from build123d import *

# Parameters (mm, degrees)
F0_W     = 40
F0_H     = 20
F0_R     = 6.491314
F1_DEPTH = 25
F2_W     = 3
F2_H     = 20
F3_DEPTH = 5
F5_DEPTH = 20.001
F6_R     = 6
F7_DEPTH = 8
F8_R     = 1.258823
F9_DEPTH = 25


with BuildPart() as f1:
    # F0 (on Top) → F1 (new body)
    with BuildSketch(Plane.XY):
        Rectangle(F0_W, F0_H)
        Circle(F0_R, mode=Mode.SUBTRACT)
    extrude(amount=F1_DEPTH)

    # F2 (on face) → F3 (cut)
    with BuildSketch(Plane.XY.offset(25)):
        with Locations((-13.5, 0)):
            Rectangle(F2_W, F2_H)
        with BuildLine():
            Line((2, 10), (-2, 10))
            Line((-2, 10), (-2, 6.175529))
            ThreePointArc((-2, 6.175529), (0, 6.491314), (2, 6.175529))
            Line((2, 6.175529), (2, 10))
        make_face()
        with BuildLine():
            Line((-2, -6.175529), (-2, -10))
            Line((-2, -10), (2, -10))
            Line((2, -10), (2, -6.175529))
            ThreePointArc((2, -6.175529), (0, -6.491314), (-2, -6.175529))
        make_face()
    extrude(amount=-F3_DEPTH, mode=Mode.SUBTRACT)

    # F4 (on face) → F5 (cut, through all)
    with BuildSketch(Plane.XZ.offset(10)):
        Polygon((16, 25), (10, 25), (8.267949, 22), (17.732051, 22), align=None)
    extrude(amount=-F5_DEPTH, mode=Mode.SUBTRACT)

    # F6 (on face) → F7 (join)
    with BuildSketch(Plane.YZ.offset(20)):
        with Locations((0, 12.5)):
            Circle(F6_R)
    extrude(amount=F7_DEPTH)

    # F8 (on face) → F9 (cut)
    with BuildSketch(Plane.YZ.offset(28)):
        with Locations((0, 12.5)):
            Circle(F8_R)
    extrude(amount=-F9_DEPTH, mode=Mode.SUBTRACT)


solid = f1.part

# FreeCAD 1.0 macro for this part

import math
import FreeCAD as App
import Part
import Sketcher
Q = App.Units.Quantity

doc = App.newDocument("Part")
params = doc.addObject("Spreadsheet::Sheet", "Params")
for row, (alias, value) in enumerate([
    ("sketch1_width", "40 mm"),
    ("sketch1_height", "20 mm"),
    ("pad1_length", "25 mm"),
    ("sketch2_width", "3 mm"),
    ("sketch2_width2", "4 mm"),
    ("sketch2_height", "20 mm"),
    ("pocket1_length", "5 mm"),
    ("sketch3_width", "6 mm"),
    ("sketch4_diameter", "12 mm"),
    ("pad2_length", "8 mm"),
    ("pocket3_length", "25 mm"),
], start=1):
    params.set(f"A{row}", alias)
    params.set(f"B{row}", "=" + value)
    params.setAlias(f"B{row}", alias)

body = doc.addObject("PartDesign::Body", "Body")

sketch1 = body.newObject("Sketcher::SketchObject", "Sketch")
sketch1.AttachmentSupport = (doc.getObject("XY_Plane"), [""])
sketch1.MapMode = "FlatFace"
sketch1.addGeometry([
    Part.LineSegment(App.Vector(-20, 10, 0), App.Vector(-20, -10, 0)),
    Part.LineSegment(App.Vector(-20, -10, 0), App.Vector(20, -10, 0)),
    Part.LineSegment(App.Vector(20, -10, 0), App.Vector(20, 10, 0)),
    Part.LineSegment(App.Vector(20, 10, 0), App.Vector(-20, 10, 0)),
    Part.Circle(App.Vector(0, 0, 0), App.Vector(0, 0, 1), 6.491314),
], False)
sketch1.addConstraint([
    Sketcher.Constraint("Coincident", 0, 2, 1, 1),
    Sketcher.Constraint("Coincident", 1, 2, 2, 1),
    Sketcher.Constraint("Coincident", 2, 2, 3, 1),
    Sketcher.Constraint("Coincident", 3, 2, 0, 1),
    Sketcher.Constraint("Vertical", 0),
    Sketcher.Constraint("Horizontal", 1),
    Sketcher.Constraint("Vertical", 2),
    Sketcher.Constraint("Horizontal", 3),
    Sketcher.Constraint("Coincident", 4, 3, -1, 1),
    Sketcher.Constraint("Symmetric", 0, 2, 2, 2, -1, 1),
    Sketcher.Constraint("DistanceX", 1, 1, 1, 2, Q("40 mm")),
    Sketcher.Constraint("DistanceY", 0, 2, 0, 1, Q("20 mm")),
    Sketcher.Constraint("Diameter", 4, Q("12.982628 mm")),
])
sketch1.setExpression("Constraints[10]", "Params.sketch1_width")
sketch1.setExpression("Constraints[11]", "Params.sketch1_height")
pad1 = body.newObject("PartDesign::Pad", "Pad")
pad1.Profile = sketch1
pad1.setExpression("Length", "Params.pad1_length")

sketch2 = body.newObject("Sketcher::SketchObject", "Sketch001")
sketch2.AttachmentSupport = (doc.getObject("XY_Plane"), [""])
sketch2.MapMode = "FlatFace"
sketch2.AttachmentOffset = App.Placement(App.Vector(0, 0, 25), App.Rotation())
sketch2.addGeometry([
    Part.LineSegment(App.Vector(-15, 10, 0), App.Vector(-15, -10, 0)),
    Part.LineSegment(App.Vector(-15, -10, 0), App.Vector(-12, -10, 0)),
    Part.LineSegment(App.Vector(-12, -10, 0), App.Vector(-12, 10, 0)),
    Part.LineSegment(App.Vector(-12, 10, 0), App.Vector(-15, 10, 0)),
    Part.LineSegment(App.Vector(2, 10, 0), App.Vector(-2, 10, 0)),
    Part.LineSegment(App.Vector(-2, 10, 0), App.Vector(-2, 6.175529, 0)),
    Part.ArcOfCircle(Part.Circle(App.Vector(0, -0.000002, 0), App.Vector(0, 0, 1), 6.491316), math.radians(72.054997), math.radians(107.945003)),
    Part.LineSegment(App.Vector(2, 6.175529, 0), App.Vector(2, 10, 0)),
    Part.LineSegment(App.Vector(-2, -6.175529, 0), App.Vector(-2, -10, 0)),
    Part.LineSegment(App.Vector(-2, -10, 0), App.Vector(2, -10, 0)),
    Part.LineSegment(App.Vector(2, -10, 0), App.Vector(2, -6.175529, 0)),
    Part.ArcOfCircle(Part.Circle(App.Vector(0, 0.000002, 0), App.Vector(0, 0, 1), 6.491316), math.radians(-107.945003), math.radians(-72.054997)),
], False)
sketch2.addConstraint([
    Sketcher.Constraint("Coincident", 0, 2, 1, 1),
    Sketcher.Constraint("Coincident", 1, 2, 2, 1),
    Sketcher.Constraint("Coincident", 2, 2, 3, 1),
    Sketcher.Constraint("Coincident", 3, 2, 0, 1),
    Sketcher.Constraint("Coincident", 4, 2, 5, 1),
    Sketcher.Constraint("Coincident", 5, 2, 6, 2),
    Sketcher.Constraint("Coincident", 6, 1, 7, 1),
    Sketcher.Constraint("Coincident", 7, 2, 4, 1),
    Sketcher.Constraint("Coincident", 8, 2, 9, 1),
    Sketcher.Constraint("Coincident", 9, 2, 10, 1),
    Sketcher.Constraint("Coincident", 10, 2, 11, 2),
    Sketcher.Constraint("Coincident", 11, 1, 8, 1),
    Sketcher.Constraint("Vertical", 0),
    Sketcher.Constraint("Horizontal", 1),
    Sketcher.Constraint("Vertical", 2),
    Sketcher.Constraint("Horizontal", 3),
    Sketcher.Constraint("Horizontal", 4),
    Sketcher.Constraint("Vertical", 5),
    Sketcher.Constraint("Vertical", 7),
    Sketcher.Constraint("Vertical", 8),
    Sketcher.Constraint("Horizontal", 9),
    Sketcher.Constraint("Vertical", 10),
    Sketcher.Constraint("Coincident", 6, 3, -1, 1),
    Sketcher.Constraint("Coincident", 11, 3, -1, 1),
    Sketcher.Constraint("Equal", 6, 11),
    Sketcher.Constraint("Symmetric", 7, 2, 8, 2, -1, 1),
    Sketcher.Constraint("Horizontal", 3, 2, 4, 2),
    Sketcher.Constraint("Horizontal", 5, 2, 6, 1),
    Sketcher.Constraint("Horizontal", 1, 2, 8, 2),
    Sketcher.Constraint("Horizontal", 10, 2, 11, 1),
    Sketcher.Constraint("DistanceX", 1, 1, 1, 2, Q("3 mm")),
    Sketcher.Constraint("DistanceX", 4, 2, 4, 1, Q("4 mm")),
    Sketcher.Constraint("DistanceY", 0, 2, 0, 1, Q("20 mm")),
    Sketcher.Constraint("DistanceX", 0, 2, -1, 1, Q("15 mm")),
    Sketcher.Constraint("Radius", 6, Q("6.491316 mm")),
])
sketch2.setExpression("Constraints[30]", "Params.sketch2_width")
sketch2.setExpression("Constraints[31]", "Params.sketch2_width2")
sketch2.setExpression("Constraints[32]", "Params.sketch2_height")
pocket1 = body.newObject("PartDesign::Pocket", "Pocket")
pocket1.Profile = sketch2
pocket1.setExpression("Length", "Params.pocket1_length")

sketch3 = body.newObject("Sketcher::SketchObject", "Sketch002")
sketch3.AttachmentSupport = (doc.getObject("XZ_Plane"), [""])
sketch3.MapMode = "FlatFace"
sketch3.AttachmentOffset = App.Placement(App.Vector(0, 0, 10), App.Rotation())
sketch3.addGeometry([
    Part.LineSegment(App.Vector(16, 25, 0), App.Vector(10, 25, 0)),
    Part.LineSegment(App.Vector(10, 25, 0), App.Vector(8.267949, 22, 0)),
    Part.LineSegment(App.Vector(8.267949, 22, 0), App.Vector(17.732051, 22, 0)),
    Part.LineSegment(App.Vector(17.732051, 22, 0), App.Vector(16, 25, 0)),
], False)
sketch3.addConstraint([
    Sketcher.Constraint("Coincident", 0, 2, 1, 1),
    Sketcher.Constraint("Coincident", 1, 2, 2, 1),
    Sketcher.Constraint("Coincident", 2, 2, 3, 1),
    Sketcher.Constraint("Coincident", 3, 2, 0, 1),
    Sketcher.Constraint("Horizontal", 0),
    Sketcher.Constraint("Horizontal", 2),
    Sketcher.Constraint("Equal", 1, 3),
    Sketcher.Constraint("DistanceX", 0, 2, 0, 1, Q("6 mm")),
    Sketcher.Constraint("Angle", 1, Q("-120.000003 deg")),
    Sketcher.Constraint("DistanceX", -1, 1, 0, 2, Q("10 mm")),
    Sketcher.Constraint("DistanceY", -1, 1, 0, 2, Q("25 mm")),
    Sketcher.Constraint("DistanceY", -1, 1, 1, 2, Q("22 mm")),
])
sketch3.setExpression("Constraints[7]", "Params.sketch3_width")
pocket2 = body.newObject("PartDesign::Pocket", "Pocket001")
pocket2.Profile = sketch3
pocket2.Type = "ThroughAll"

sketch4 = body.newObject("Sketcher::SketchObject", "Sketch003")
sketch4.AttachmentSupport = (doc.getObject("YZ_Plane"), [""])
sketch4.MapMode = "FlatFace"
sketch4.AttachmentOffset = App.Placement(App.Vector(0, 0, 20), App.Rotation())
sketch4.addGeometry(Part.Circle(App.Vector(0, 12.5, 0), App.Vector(0, 0, 1), 6), False)
sketch4.addConstraint([
    Sketcher.Constraint("PointOnObject", 0, 3, -2),
    Sketcher.Constraint("Diameter", 0, Q("12 mm")),
    Sketcher.Constraint("DistanceY", -1, 1, 0, 3, Q("12.5 mm")),
])
sketch4.setExpression("Constraints[1]", "Params.sketch4_diameter")
pad2 = body.newObject("PartDesign::Pad", "Pad001")
pad2.Profile = sketch4
pad2.setExpression("Length", "Params.pad2_length")

sketch5 = body.newObject("Sketcher::SketchObject", "Sketch004")
sketch5.AttachmentSupport = (doc.getObject("YZ_Plane"), [""])
sketch5.MapMode = "FlatFace"
sketch5.AttachmentOffset = App.Placement(App.Vector(0, 0, 28), App.Rotation())
sketch5.addGeometry(Part.Circle(App.Vector(0, 12.5, 0), App.Vector(0, 0, 1), 1.258823), False)
sketch5.addConstraint([
    Sketcher.Constraint("PointOnObject", 0, 3, -2),
    Sketcher.Constraint("DistanceY", -1, 1, 0, 3, Q("12.5 mm")),
    Sketcher.Constraint("Diameter", 0, Q("2.517646 mm")),
])
pocket3 = body.newObject("PartDesign::Pocket", "Pocket002")
pocket3.Profile = sketch5
pocket3.setExpression("Length", "Params.pocket3_length")

doc.recompute()
